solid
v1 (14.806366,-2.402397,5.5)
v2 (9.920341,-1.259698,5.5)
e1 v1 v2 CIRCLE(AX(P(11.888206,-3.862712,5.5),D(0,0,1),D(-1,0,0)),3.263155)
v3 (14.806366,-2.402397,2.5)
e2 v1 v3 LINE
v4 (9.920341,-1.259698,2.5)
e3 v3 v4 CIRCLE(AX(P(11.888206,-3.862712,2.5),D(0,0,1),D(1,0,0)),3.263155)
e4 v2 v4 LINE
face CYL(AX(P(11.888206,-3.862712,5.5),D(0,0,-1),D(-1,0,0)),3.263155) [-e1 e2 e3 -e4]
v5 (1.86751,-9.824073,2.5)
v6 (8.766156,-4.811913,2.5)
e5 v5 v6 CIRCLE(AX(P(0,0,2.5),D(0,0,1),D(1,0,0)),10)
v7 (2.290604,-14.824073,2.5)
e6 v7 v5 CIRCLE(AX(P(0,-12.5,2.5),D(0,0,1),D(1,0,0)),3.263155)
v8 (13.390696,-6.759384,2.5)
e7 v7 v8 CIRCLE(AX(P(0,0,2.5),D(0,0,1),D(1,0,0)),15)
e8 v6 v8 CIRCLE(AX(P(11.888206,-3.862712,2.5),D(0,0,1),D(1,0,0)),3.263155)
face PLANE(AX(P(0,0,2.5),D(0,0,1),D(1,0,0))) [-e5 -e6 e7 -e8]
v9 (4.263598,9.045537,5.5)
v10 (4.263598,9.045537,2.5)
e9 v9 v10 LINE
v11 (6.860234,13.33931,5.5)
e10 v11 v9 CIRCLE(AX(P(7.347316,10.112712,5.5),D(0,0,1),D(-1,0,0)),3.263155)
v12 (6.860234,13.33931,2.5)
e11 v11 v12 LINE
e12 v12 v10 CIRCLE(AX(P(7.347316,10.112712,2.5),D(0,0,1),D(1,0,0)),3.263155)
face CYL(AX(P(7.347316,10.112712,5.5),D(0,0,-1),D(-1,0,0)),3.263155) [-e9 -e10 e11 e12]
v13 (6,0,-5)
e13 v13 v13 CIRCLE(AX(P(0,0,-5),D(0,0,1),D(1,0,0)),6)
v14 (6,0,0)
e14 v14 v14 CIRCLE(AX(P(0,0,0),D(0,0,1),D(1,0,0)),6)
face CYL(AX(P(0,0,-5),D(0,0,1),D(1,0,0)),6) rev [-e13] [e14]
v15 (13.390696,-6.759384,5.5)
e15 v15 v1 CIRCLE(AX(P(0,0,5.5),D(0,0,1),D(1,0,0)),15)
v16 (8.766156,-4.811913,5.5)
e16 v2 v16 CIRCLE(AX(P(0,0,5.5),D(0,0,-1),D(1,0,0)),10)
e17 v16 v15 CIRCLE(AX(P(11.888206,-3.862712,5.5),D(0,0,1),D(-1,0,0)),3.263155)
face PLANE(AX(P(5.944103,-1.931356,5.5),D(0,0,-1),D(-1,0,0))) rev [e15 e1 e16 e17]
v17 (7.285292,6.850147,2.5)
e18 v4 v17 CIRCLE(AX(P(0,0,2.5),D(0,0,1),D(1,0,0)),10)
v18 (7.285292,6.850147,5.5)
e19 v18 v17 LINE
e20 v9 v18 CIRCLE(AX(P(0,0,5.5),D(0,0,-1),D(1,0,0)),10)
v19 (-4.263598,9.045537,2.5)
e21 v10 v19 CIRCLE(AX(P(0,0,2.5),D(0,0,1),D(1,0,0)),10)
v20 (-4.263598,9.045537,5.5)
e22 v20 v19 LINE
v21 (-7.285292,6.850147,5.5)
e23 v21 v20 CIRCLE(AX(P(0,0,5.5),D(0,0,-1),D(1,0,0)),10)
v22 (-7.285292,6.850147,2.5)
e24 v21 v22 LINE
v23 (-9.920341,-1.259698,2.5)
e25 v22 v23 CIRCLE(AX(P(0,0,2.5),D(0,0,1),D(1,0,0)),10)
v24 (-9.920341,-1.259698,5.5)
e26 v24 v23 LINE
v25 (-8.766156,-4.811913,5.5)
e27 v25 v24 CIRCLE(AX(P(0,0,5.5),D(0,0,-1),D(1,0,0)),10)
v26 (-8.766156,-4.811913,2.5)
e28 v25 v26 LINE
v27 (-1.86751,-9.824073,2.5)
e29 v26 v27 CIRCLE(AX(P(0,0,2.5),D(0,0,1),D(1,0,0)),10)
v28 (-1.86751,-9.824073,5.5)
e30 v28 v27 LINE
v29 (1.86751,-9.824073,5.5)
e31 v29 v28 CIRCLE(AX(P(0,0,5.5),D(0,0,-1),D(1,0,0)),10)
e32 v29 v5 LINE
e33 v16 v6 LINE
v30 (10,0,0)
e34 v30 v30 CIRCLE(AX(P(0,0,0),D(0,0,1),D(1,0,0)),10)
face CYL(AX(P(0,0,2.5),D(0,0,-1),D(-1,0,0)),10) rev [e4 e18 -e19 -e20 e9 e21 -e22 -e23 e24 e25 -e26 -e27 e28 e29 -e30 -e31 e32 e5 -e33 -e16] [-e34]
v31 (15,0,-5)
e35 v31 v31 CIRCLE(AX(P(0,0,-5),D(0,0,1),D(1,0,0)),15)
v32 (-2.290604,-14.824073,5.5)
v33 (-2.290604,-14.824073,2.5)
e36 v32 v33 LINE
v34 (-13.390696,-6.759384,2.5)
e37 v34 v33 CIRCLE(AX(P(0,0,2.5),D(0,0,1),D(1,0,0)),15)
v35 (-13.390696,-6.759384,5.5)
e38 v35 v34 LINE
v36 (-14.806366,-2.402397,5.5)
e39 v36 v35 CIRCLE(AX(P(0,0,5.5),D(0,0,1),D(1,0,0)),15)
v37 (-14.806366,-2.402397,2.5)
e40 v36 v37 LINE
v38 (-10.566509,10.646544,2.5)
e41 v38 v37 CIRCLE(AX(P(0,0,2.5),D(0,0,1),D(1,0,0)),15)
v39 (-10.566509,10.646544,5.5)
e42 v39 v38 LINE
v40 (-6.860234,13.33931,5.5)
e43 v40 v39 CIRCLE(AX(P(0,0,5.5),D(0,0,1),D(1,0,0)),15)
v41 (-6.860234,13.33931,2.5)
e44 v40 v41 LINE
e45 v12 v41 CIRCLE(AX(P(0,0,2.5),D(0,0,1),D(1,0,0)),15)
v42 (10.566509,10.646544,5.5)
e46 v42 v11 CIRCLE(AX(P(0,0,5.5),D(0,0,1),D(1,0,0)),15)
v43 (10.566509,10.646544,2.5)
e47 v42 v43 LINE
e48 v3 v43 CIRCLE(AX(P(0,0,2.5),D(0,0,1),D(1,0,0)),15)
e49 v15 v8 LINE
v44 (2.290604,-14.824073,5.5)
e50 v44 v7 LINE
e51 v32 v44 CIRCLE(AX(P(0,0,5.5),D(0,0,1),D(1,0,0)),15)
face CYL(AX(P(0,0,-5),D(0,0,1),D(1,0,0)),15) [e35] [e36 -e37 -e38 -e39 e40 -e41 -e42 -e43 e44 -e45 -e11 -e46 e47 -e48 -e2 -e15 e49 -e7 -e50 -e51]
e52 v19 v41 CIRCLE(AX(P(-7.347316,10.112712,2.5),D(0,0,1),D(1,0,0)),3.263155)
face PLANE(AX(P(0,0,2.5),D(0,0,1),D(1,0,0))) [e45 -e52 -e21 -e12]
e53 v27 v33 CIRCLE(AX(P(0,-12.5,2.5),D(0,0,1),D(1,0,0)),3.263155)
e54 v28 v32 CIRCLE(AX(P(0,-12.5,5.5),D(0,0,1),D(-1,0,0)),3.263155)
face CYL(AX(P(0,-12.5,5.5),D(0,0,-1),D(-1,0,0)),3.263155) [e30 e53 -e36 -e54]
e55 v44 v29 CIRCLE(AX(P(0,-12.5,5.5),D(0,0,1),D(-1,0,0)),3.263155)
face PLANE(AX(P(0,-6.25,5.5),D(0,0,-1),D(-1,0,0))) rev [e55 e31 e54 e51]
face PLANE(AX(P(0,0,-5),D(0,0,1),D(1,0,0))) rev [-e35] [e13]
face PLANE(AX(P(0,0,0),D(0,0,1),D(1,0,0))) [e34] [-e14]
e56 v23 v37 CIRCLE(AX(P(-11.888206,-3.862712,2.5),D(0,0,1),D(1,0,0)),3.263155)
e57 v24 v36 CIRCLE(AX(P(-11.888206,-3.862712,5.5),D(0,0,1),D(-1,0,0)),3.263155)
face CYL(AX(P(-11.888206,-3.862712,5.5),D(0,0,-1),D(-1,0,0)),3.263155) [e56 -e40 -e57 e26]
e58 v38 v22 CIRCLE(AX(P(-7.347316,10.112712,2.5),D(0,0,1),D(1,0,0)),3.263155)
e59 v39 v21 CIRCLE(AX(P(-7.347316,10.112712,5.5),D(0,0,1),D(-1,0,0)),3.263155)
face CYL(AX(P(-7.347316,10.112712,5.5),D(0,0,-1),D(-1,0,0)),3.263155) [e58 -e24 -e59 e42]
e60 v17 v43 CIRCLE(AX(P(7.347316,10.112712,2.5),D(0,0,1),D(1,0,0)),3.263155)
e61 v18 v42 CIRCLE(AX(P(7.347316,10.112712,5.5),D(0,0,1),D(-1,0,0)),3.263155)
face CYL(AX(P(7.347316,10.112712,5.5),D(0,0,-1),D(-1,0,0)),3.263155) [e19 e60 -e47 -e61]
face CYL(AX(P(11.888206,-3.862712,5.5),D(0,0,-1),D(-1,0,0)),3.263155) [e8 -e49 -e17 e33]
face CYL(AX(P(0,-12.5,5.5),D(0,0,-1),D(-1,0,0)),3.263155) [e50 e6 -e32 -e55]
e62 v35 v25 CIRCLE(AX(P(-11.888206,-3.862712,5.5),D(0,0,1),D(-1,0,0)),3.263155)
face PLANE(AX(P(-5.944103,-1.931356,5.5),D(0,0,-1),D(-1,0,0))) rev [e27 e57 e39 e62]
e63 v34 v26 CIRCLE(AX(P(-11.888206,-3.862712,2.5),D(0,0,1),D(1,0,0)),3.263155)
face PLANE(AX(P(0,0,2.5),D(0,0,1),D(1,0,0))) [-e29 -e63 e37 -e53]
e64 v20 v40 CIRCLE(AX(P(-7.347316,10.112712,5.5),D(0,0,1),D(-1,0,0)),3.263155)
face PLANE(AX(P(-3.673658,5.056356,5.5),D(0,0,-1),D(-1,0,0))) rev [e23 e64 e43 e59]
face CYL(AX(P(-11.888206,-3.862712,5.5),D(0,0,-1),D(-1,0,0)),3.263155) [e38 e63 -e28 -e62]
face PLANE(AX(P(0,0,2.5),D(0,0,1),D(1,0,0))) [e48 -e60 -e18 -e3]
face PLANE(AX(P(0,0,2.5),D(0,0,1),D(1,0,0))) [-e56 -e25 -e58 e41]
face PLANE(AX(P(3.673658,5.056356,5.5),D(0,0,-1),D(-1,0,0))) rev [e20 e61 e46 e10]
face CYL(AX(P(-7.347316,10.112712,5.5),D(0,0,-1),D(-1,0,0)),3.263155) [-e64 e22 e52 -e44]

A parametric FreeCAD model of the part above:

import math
import FreeCAD as App
import Part
import Sketcher
from FreeCAD import Vector
Q = App.Units.Quantity

doc = App.newDocument("Part")
body = doc.addObject("PartDesign::Body", "Body")

sketch1 = body.newObject("Sketcher::SketchObject", "Sketch")
sketch1.AttachmentSupport = (doc.getObject("XY_Plane"), [""])
sketch1.MapMode = "FlatFace"
sketch1.addGeometry([
    Part.Circle(Vector(0, 0, 0), Vector(0, 0, 1), 15),
    Part.Circle(Vector(0, 0, 0), Vector(0, 0, 1), 6),
], False)
sketch1.addConstraint([
    Sketcher.Constraint("Coincident", 0, 3, -1, 1),
    Sketcher.Constraint("Coincident", 1, 3, -1, 1),
    Sketcher.Constraint("Diameter", 0, Q("30 mm")),
    Sketcher.Constraint("Diameter", 1, Q("12 mm")),
])
pad1 = body.newObject("PartDesign::Pad", "Pad")
pad1.Profile = sketch1
pad1.Length = 5
pad1.Reversed = True

sketch2 = body.newObject("Sketcher::SketchObject", "Sketch001")
sketch2.AttachmentSupport = (doc.getObject("XY_Plane"), [""])
sketch2.MapMode = "FlatFace"
sketch2.AttachmentOffset = App.Placement(Vector(0, 0, 2.5), App.Rotation())
sketch2.addGeometry([
    Part.Circle(Vector(0, 0, 0), Vector(0, 0, 1), 15),
    Part.Circle(Vector(0, 0, 0), Vector(0, 0, 1), 10),
], False)
sketch2.addConstraint([
    Sketcher.Constraint("Coincident", 0, 3, -1, 1),
    Sketcher.Constraint("Coincident", 1, 3, -1, 1),
    Sketcher.Constraint("Diameter", 0, Q("30 mm")),
    Sketcher.Constraint("Diameter", 1, Q("20 mm")),
])
pad2 = body.newObject("PartDesign::Pad", "Pad001")
pad2.Profile = sketch2
pad2.Length = 2.5
pad2.Reversed = True

sketch3 = body.newObject("Sketcher::SketchObject", "Sketch002")
sketch3.AttachmentSupport = (doc.getObject("XY_Plane"), [""])
sketch3.MapMode = "FlatFace"
sketch3.AttachmentOffset = App.Placement(Vector(0, 0, 5.5), App.Rotation())
sketch3.addGeometry([
    Part.ArcOfCircle(Part.Circle(Vector(0, 0, 0), Vector(0, 0, 1), 15), math.radians(-98.78), math.radians(-81.22)),
    Part.ArcOfCircle(Part.Circle(Vector(0, -12.5, 0), Vector(0, 0, 1), 3.3), math.radians(-45), math.radians(7)),
    Part.ArcOfCircle(Part.Circle(Vector(0, -12.5, 0), Vector(0, 0, 1), 3.3), math.radians(8), math.radians(55)),
    Part.ArcOfCircle(Part.Circle(Vector(0, 0, 0), Vector(0, 0, 1), 10), math.radians(-101), math.radians(-79)),
    Part.ArcOfCircle(Part.Circle(Vector(0, -12.5, 0), Vector(0, 0, 1), 3.3), math.radians(125), math.radians(172)),
    Part.ArcOfCircle(Part.Circle(Vector(0, -12.5, 0), Vector(0, 0, 1), 3.3), math.radians(173), math.radians(225)),
    Part.ArcOfCircle(Part.Circle(Vector(0, 0, 0), Vector(0, 0, 1), 15), math.radians(-170.78), math.radians(-153.22)),
    Part.ArcOfCircle(Part.Circle(Vector(-11.9, -3.9, 0), Vector(0, 0, 1), 3.3), math.radians(-117), math.radians(-64)),
    Part.ArcOfCircle(Part.Circle(Vector(-11.9, -3.9, 0), Vector(0, 0, 1), 3.3), math.radians(-64), math.radians(-17)),
    Part.ArcOfCircle(Part.Circle(Vector(0, 0, 0), Vector(0, 0, 1), 10), math.radians(-173), math.radians(-151)),
    Part.ArcOfCircle(Part.Circle(Vector(-11.9, -3.9, 0), Vector(0, 0, 1), 3.3), math.radians(53), math.radians(100)),
    Part.ArcOfCircle(Part.Circle(Vector(-11.9, -3.9, 0), Vector(0, 0, 1), 3.3), math.radians(100), math.radians(153)),
    Part.ArcOfCircle(Part.Circle(Vector(0, 0, 0), Vector(0, 0, 1), 15), math.radians(117.22), math.radians(134.78)),
    Part.ArcOfCircle(Part.Circle(Vector(-7.3, 10.1, 0), Vector(0, 0, 1), 3.3), math.radians(171), math.radians(224)),
    Part.ArcOfCircle(Part.Circle(Vector(-7.3, 10.1, 0), Vector(0, 0, 1), 3.3), math.radians(-136), math.radians(-89)),
    Part.ArcOfCircle(Part.Circle(Vector(0, 0, 0), Vector(0, 0, 1), 10), math.radians(115), math.radians(137)),
    Part.ArcOfCircle(Part.Circle(Vector(-7.3, 10.1, 0), Vector(0, 0, 1), 3.3), math.radians(-19), math.radians(28)),
    Part.ArcOfCircle(Part.Circle(Vector(-7.3, 10.1, 0), Vector(0, 0, 1), 3.3), math.radians(29), math.radians(81)),
    Part.ArcOfCircle(Part.Circle(Vector(0, 0, 0), Vector(0, 0, 1), 15), math.radians(45.22), math.radians(62.78)),
    Part.ArcOfCircle(Part.Circle(Vector(7.3, 10.1, 0), Vector(0, 0, 1), 3.3), math.radians(99), math.radians(151)),
    Part.ArcOfCircle(Part.Circle(Vector(7.3, 10.1, 0), Vector(0, 0, 1), 3.3), math.radians(152), math.radians(199)),
    Part.ArcOfCircle(Part.Circle(Vector(0, 0, 0), Vector(0, 0, 1), 10), math.radians(43), math.radians(65)),
    Part.ArcOfCircle(Part.Circle(Vector(7.3, 10.1, 0), Vector(0, 0, 1), 3.3), math.radians(-91), math.radians(-44)),
    Part.ArcOfCircle(Part.Circle(Vector(7.3, 10.1, 0), Vector(0, 0, 1), 3.3), math.radians(-44), math.radians(9)),
    Part.ArcOfCircle(Part.Circle(Vector(0, 0, 0), Vector(0, 0, 1), 15), math.radians(-26.78), math.radians(-9.22)),
    Part.ArcOfCircle(Part.Circle(Vector(11.9, -3.9, 0), Vector(0, 0, 1), 3.3), math.radians(27), math.radians(80)),
    Part.ArcOfCircle(Part.Circle(Vector(11.9, -3.9, 0), Vector(0, 0, 1), 3.3), math.radians(80), math.radians(127)),
    Part.ArcOfCircle(Part.Circle(Vector(0, 0, 0), Vector(0, 0, 1), 10), math.radians(-29), math.radians(-7)),
    Part.ArcOfCircle(Part.Circle(Vector(11.9, -3.9, 0), Vector(0, 0, 1), 3.3), math.radians(-163), math.radians(-116)),
    Part.ArcOfCircle(Part.Circle(Vector(11.9, -3.9, 0), Vector(0, 0, 1), 3.3), math.radians(-116), math.radians(-63)),
], False)
sketch3.addConstraint([
    Sketcher.Constraint("Coincident", 0, 2, 1, 1),
    Sketcher.Constraint("Tangent", 1, 2, 2, 1),
    Sketcher.Constraint("Coincident", 2, 2, 3, 2),
    Sketcher.Constraint("Coincident", 3, 1, 4, 1),
    Sketcher.Constraint("Tangent", 4, 2, 5, 1),
    Sketcher.Constraint("Coincident", 5, 2, 0, 1),
    Sketcher.Constraint("Coincident", 6, 2, 7, 1),
    Sketcher.Constraint("Tangent", 7, 2, 8, 1),
    Sketcher.Constraint("Coincident", 8, 2, 9, 2),
    Sketcher.Constraint("Coincident", 9, 1, 10, 1),
    Sketcher.Constraint("Tangent", 10, 2, 11, 1),
    Sketcher.Constraint("Coincident", 11, 2, 6, 1),
    Sketcher.Constraint("Coincident", 12, 2, 13, 1),
    Sketcher.Constraint("Tangent", 13, 2, 14, 1),
    Sketcher.Constraint("Coincident", 14, 2, 15, 2),
    Sketcher.Constraint("Coincident", 15, 1, 16, 1),
    Sketcher.Constraint("Tangent", 16, 2, 17, 1),
    Sketcher.Constraint("Coincident", 17, 2, 12, 1),
    Sketcher.Constraint("Coincident", 18, 2, 19, 1),
    Sketcher.Constraint("Tangent", 19, 2, 20, 1),
    Sketcher.Constraint("Coincident", 20, 2, 21, 2),
    Sketcher.Constraint("Coincident", 21, 1, 22, 1),
    Sketcher.Constraint("Tangent", 22, 2, 23, 1),
    Sketcher.Constraint("Coincident", 23, 2, 18, 1),
    Sketcher.Constraint("Coincident", 24, 2, 25, 1),
    Sketcher.Constraint("Tangent", 25, 2, 26, 1),
    Sketcher.Constraint("Coincident", 26, 2, 27, 2),
    Sketcher.Constraint("Coincident", 27, 1, 28, 1),
    Sketcher.Constraint("Tangent", 28, 2, 29, 1),
    Sketcher.Constraint("Coincident", 29, 2, 24, 1),
    Sketcher.Constraint("Coincident", 0, 3, -1, 1),
    Sketcher.Constraint("Coincident", 3, 3, -1, 1),
    Sketcher.Constraint("Coincident", 6, 3, -1, 1),
    Sketcher.Constraint("Coincident", 9, 3, -1, 1),
    Sketcher.Constraint("Coincident", 12, 3, -1, 1),
    Sketcher.Constraint("Coincident", 15, 3, -1, 1),
    Sketcher.Constraint("Coincident", 18, 3, -1, 1),
    Sketcher.Constraint("Coincident", 21, 3, -1, 1),
    Sketcher.Constraint("Coincident", 24, 3, -1, 1),
    Sketcher.Constraint("Coincident", 27, 3, -1, 1),
    Sketcher.Constraint("Coincident", 4, 3, 1, 3),
    Sketcher.Constraint("Coincident", 10, 3, 7, 3),
    Sketcher.Constraint("Coincident", 16, 3, 13, 3),
    Sketcher.Constraint("Coincident", 22, 3, 19, 3),
    Sketcher.Constraint("Coincident", 28, 3, 25, 3),
    Sketcher.Constraint("Equal", 1, 2),
    Sketcher.Constraint("Equal", 2, 4),
    Sketcher.Constraint("Equal", 4, 5),
    Sketcher.Constraint("Equal", 0, 6),
    Sketcher.Constraint("Equal", 5, 7),
    Sketcher.Constraint("Equal", 7, 8),
    Sketcher.Constraint("Equal", 3, 9),
    Sketcher.Constraint("Equal", 8, 10),
    Sketcher.Constraint("Equal", 10, 11),
    Sketcher.Constraint("Equal", 6, 12),
    Sketcher.Constraint("Equal", 11, 13),
    Sketcher.Constraint("Equal", 13, 14),
    Sketcher.Constraint("Equal", 9, 15),
    Sketcher.Constraint("Equal", 14, 16),
    Sketcher.Constraint("Equal", 16, 17),
    Sketcher.Constraint("Equal", 12, 18),
    Sketcher.Constraint("Equal", 17, 19),
    Sketcher.Constraint("Equal", 19, 20),
    Sketcher.Constraint("Equal", 15, 21),
    Sketcher.Constraint("Equal", 20, 22),
    Sketcher.Constraint("Equal", 22, 23),
    Sketcher.Constraint("Equal", 18, 24),
    Sketcher.Constraint("Equal", 23, 25),
    Sketcher.Constraint("Equal", 25, 26),
    Sketcher.Constraint("Equal", 21, 27),
    Sketcher.Constraint("Equal", 26, 28),
    Sketcher.Constraint("Equal", 28, 29),
    Sketcher.Constraint("Symmetric", 13, 3, 19, 3, -2),
    Sketcher.Constraint("Symmetric", 7, 3, 25, 3, -2),
    Sketcher.Constraint("Symmetric", 1, 2, 4, 2, -2),
    Sketcher.Constraint("Horizontal", 16, 2, 19, 2),
    Sketcher.Constraint("Horizontal", 13, 2, 22, 2),
    Sketcher.Constraint("Horizontal", 10, 2, 25, 2),
    Sketcher.Constraint("Horizontal", 7, 2, 28, 2),
    Sketcher.Constraint("Radius", 0, Q("15 mm")),
    Sketcher.Constraint("Radius", 3, Q("10 mm")),
    Sketcher.Constraint("DistanceY", 1, 3, -1, 1, Q("12.5 mm")),
    Sketcher.Constraint("DistanceY", 0, 2, 1, 2, Q("2.75 mm")),
    Sketcher.Constraint("Radius", 1, Q("3.263155 mm")),
    Sketcher.Constraint("DistanceX", 16, 2, 15, 1, Q("0.216001 mm")),
    Sketcher.Constraint("DistanceY", 9, 1, -1, 1, Q("1.259698 mm")),
    Sketcher.Constraint("DistanceY", 10, 2, -1, 1, Q("0.654199 mm")),
    Sketcher.Constraint("DistanceX", 16, 2, -1, 1, Q("4.479599 mm")),
    Sketcher.Constraint("DistanceY", 8, 2, 7, 3, Q("0.9492 mm")),
    Sketcher.Constraint("DistanceY", 24, 2, 22, 2, Q("10.268902 mm")),
    Sketcher.Constraint("DistanceX", 12, 2, -1, 1, Q("10.566509 mm")),
    Sketcher.Constraint("DistanceX", 7, 2, -1, 1, Q("10.483382 mm")),
])
pad3 = body.newObject("PartDesign::Pad", "Pad002")
pad3.Profile = sketch3
pad3.Length = 3
pad3.Reversed = True

doc.recompute()
